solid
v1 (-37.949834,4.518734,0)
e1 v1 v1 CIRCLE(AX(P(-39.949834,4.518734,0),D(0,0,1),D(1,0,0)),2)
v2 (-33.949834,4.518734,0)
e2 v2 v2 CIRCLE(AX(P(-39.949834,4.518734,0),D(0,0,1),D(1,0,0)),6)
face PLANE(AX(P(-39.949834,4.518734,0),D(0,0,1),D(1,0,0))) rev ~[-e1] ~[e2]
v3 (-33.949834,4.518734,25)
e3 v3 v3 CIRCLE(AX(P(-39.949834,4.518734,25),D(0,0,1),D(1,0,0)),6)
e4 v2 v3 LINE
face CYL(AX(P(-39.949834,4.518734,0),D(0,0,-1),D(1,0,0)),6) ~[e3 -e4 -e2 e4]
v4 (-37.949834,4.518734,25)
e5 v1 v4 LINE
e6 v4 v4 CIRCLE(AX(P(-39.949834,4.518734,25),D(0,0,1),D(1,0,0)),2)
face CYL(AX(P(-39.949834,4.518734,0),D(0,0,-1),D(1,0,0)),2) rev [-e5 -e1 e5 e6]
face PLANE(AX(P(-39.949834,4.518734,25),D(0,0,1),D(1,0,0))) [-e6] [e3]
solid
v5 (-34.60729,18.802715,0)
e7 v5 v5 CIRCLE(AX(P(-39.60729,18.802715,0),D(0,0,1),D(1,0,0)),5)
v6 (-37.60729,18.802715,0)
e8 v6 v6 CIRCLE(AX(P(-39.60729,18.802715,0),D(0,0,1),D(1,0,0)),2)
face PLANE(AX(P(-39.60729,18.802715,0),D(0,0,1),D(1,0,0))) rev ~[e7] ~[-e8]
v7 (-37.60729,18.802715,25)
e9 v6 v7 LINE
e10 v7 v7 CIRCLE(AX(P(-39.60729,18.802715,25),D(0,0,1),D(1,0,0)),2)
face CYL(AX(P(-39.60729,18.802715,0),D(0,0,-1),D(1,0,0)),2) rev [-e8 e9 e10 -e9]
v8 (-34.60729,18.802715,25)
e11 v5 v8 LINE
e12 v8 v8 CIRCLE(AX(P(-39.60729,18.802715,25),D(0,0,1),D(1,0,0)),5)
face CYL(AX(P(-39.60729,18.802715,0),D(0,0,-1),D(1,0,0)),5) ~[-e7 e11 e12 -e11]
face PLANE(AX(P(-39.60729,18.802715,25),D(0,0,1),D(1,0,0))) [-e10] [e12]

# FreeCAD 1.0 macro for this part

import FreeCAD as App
import Part
import Sketcher
from FreeCAD import Vector
Q = App.Units.Quantity

doc = App.newDocument("Part")
body = doc.addObject("PartDesign::Body", "Body")
body.AllowCompound = True

sketch1 = body.newObject("Sketcher::SketchObject", "Sketch")
sketch1.AttachmentSupport = (doc.getObject("XY_Plane"), [""])
sketch1.MapMode = "FlatFace"
sketch1.addGeometry([
    Part.Circle(Vector(-39.6, 18.8, 0), Vector(0, 0, 1), 5),
    Part.Circle(Vector(-39.6, 18.8, 0), Vector(0, 0, 1), 2),
    Part.Circle(Vector(-39.9, 4.5, 0), Vector(0, 0, 1), 6),
    Part.Circle(Vector(-39.9, 4.5, 0), Vector(0, 0, 1), 2),
], False)
sketch1.addConstraint([
    Sketcher.Constraint("Coincident", 1, 3, 0, 3),
    Sketcher.Constraint("Coincident", 3, 3, 2, 3),
    Sketcher.Constraint("Equal", 1, 3),
    Sketcher.Constraint("Diameter", 0, Q("10 mm")),
    Sketcher.Constraint("Diameter", 1, Q("4 mm")),
    Sketcher.Constraint("Diameter", 2, Q("12 mm")),
    Sketcher.Constraint("DistanceX", 0, 3, -1, 1, Q("39.60729 mm")),
    Sketcher.Constraint("DistanceY", 2, 3, 0, 3, Q("14.283981 mm")),
    Sketcher.Constraint("DistanceY", -1, 1, 0, 3, Q("18.802715 mm")),
    Sketcher.Constraint("DistanceX", 2, 3, -1, 1, Q("39.949834 mm")),
])
pad1 = body.newObject("PartDesign::Pad", "Pad")
pad1.Profile = sketch1
pad1.Length = 25

doc.recompute()
